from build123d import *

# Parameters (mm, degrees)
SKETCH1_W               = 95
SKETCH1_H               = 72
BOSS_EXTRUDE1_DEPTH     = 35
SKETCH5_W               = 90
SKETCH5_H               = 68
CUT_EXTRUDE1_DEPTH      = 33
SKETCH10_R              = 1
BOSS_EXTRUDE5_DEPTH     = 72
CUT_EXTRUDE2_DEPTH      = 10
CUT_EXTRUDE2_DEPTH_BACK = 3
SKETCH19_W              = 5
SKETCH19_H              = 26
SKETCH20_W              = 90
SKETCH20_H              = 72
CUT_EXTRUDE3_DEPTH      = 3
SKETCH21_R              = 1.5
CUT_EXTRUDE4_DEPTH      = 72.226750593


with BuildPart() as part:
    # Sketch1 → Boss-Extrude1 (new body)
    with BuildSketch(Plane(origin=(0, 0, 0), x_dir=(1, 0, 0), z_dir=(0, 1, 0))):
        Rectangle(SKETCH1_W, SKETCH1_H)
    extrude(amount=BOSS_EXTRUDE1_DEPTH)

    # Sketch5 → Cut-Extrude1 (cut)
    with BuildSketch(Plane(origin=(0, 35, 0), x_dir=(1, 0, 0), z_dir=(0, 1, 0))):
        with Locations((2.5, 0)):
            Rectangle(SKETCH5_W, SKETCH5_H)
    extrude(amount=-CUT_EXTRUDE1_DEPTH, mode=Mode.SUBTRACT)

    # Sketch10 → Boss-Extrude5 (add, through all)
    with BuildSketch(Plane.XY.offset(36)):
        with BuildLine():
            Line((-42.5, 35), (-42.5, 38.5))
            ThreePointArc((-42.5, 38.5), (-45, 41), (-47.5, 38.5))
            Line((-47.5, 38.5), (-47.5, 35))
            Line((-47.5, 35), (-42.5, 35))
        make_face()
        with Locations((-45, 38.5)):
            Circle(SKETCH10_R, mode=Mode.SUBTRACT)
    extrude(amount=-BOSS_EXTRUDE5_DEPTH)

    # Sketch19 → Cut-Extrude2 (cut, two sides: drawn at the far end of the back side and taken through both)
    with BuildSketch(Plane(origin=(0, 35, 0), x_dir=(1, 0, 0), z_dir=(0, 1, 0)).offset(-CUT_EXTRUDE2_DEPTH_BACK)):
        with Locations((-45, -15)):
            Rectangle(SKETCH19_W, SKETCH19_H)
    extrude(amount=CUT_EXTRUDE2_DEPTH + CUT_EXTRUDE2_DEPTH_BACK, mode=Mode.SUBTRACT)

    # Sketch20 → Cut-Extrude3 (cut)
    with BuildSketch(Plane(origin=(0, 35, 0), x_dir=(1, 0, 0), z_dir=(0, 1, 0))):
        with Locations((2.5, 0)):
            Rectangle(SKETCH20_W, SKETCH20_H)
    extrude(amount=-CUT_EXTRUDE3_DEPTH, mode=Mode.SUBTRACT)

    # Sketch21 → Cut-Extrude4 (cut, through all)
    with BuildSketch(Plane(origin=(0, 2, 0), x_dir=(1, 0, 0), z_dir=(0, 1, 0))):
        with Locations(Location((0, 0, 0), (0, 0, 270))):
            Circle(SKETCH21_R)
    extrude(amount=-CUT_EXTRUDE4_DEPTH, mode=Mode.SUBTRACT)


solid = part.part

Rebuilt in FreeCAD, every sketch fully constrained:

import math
import FreeCAD as App
import Part
import Sketcher
from FreeCAD import Vector


def add_polygon(sketch, points):
    """Adds a closed chain of lines whose ends are joined by coincident constraints."""
    first, n = sketch.GeometryCount, len(points)
    for a, b in zip(points, points[1:] + points[:1]):
        sketch.addGeometry(Part.LineSegment(App.Vector(*a, 0), App.Vector(*b, 0)), False)
    for i in range(n):
        sketch.addConstraint(Sketcher.Constraint("Coincident", first + i, 2, first + (i + 1) % n, 1))

doc = App.newDocument("Part")
body = doc.addObject("PartDesign::Body", "Body")

# Sketch on XZ plane
sketch1 = doc.addObject("Sketcher::SketchObject", "Sketch")
body.addObject(sketch1)
sketch1.AttachmentSupport = (doc.XZ_Plane, [""])
sketch1.MapMode = "FlatFace"
add_polygon(sketch1, [(-47.5, -36), (-47.5, 36), (47.5, 36), (47.5, -36)])  # lines 0-3
sketch1.addConstraint([
    Sketcher.Constraint("Vertical", 0),
    Sketcher.Constraint("Horizontal", 1),
    Sketcher.Constraint("Vertical", 2),
    Sketcher.Constraint("Horizontal", 3),
    Sketcher.Constraint("Symmetric", 0, 2, 2, 2, -1, 1),
    Sketcher.Constraint("DistanceX", 1, 1, 1, 2, 95.0),
    Sketcher.Constraint("DistanceY", 0, 1, 0, 2, 72.0),
])
pad1 = doc.addObject("PartDesign::Pad", "Pad")
body.addObject(pad1)
pad1.Profile = sketch1
pad1.Length = 35
pad1.Reversed = True

# Sketch on XZ plane
sketch2 = doc.addObject("Sketcher::SketchObject", "Sketch001")
body.addObject(sketch2)
sketch2.AttachmentSupport = (doc.XZ_Plane, [""])
sketch2.MapMode = "FlatFace"
sketch2.AttachmentOffset = App.Placement(Vector(0, 0, -35), App.Rotation())
add_polygon(sketch2, [(-42.5, -34), (-42.5, 34), (47.5, 34), (47.5, -34)])  # lines 0-3
sketch2.addConstraint([
    Sketcher.Constraint("Vertical", 0),
    Sketcher.Constraint("Horizontal", 1),
    Sketcher.Constraint("Vertical", 2),
    Sketcher.Constraint("Horizontal", 3),
    Sketcher.Constraint("DistanceX", 1, 1, 1, 2, 90.0),
    Sketcher.Constraint("DistanceY", 0, 1, 0, 2, 68.0),
    Sketcher.Constraint("DistanceY", -1, 1, 0, 2, 34.0),
    Sketcher.Constraint("DistanceX", 0, 2, -1, 1, 42.5),
])
pocket1 = doc.addObject("PartDesign::Pocket", "Pocket")
body.addObject(pocket1)
pocket1.Profile = sketch2
pocket1.Length = 33
pocket1.Reversed = True

# Sketch on XY plane
sketch3 = doc.addObject("Sketcher::SketchObject", "Sketch002")
body.addObject(sketch3)
sketch3.AttachmentSupport = (doc.XY_Plane, [""])
sketch3.MapMode = "FlatFace"
sketch3.AttachmentOffset = App.Placement(Vector(0, 0, 36), App.Rotation())
sketch3.addGeometry([
    Part.LineSegment(Vector(-42.5, 35, 0), Vector(-42.5, 38.5, 0)),  # 0
    Part.ArcOfCircle(Part.Circle(Vector(-45, 38.5, 0), Vector(0, 0, 1), 2.5), math.radians(0), math.radians(180)),  # 1
    Part.LineSegment(Vector(-47.5, 38.5, 0), Vector(-47.5, 35, 0)),  # 2
    Part.LineSegment(Vector(-47.5, 35, 0), Vector(-42.5, 35, 0)),  # 3
    Part.Circle(Vector(-45, 38.5, 0), Vector(0, 0, 1), 1),  # 4
], False)
sketch3.addConstraint([
    Sketcher.Constraint("Tangent", 0, 2, 1, 1),
    Sketcher.Constraint("Tangent", 1, 2, 2, 1),
    Sketcher.Constraint("Coincident", 2, 2, 3, 1),
    Sketcher.Constraint("Coincident", 3, 2, 0, 1),
    Sketcher.Constraint("Vertical", 0),
    Sketcher.Constraint("Vertical", 2),
    Sketcher.Constraint("Horizontal", 3),
    Sketcher.Constraint("Coincident", 4, 3, 1, 3),
    Sketcher.Constraint("Diameter", 4, 2.0),
    Sketcher.Constraint("Radius", 1, 2.5),
    Sketcher.Constraint("DistanceY", 0, 1, 0, 2, 3.5),
    Sketcher.Constraint("DistanceX", 1, 3, -1, 1, 45.0),
    Sketcher.Constraint("DistanceY", -1, 1, 2, 2, 35.0),
])
pad2 = doc.addObject("PartDesign::Pad", "Pad001")
body.addObject(pad2)
pad2.Profile = sketch3
pad2.Length = 72
pad2.Reversed = True

# Sketch on XZ plane
sketch4 = doc.addObject("Sketcher::SketchObject", "Sketch003")
body.addObject(sketch4)
sketch4.AttachmentSupport = (doc.XZ_Plane, [""])
sketch4.MapMode = "FlatFace"
sketch4.AttachmentOffset = App.Placement(Vector(0, 0, -35), App.Rotation())
add_polygon(sketch4, [(-47.5, 2), (-47.5, 28), (-42.5, 28), (-42.5, 2)])  # lines 0-3
sketch4.addConstraint([
    Sketcher.Constraint("Vertical", 0),
    Sketcher.Constraint("Horizontal", 1),
    Sketcher.Constraint("Vertical", 2),
    Sketcher.Constraint("Horizontal", 3),
    Sketcher.Constraint("DistanceX", 1, 1, 1, 2, 5.0),
    Sketcher.Constraint("DistanceY", 0, 1, 0, 2, 26.0),
    Sketcher.Constraint("DistanceY", -1, 1, 0, 2, 28.0),
    Sketcher.Constraint("DistanceX", 0, 2, -1, 1, 47.5),
])
pocket2 = doc.addObject("PartDesign::Pocket", "Pocket001")
body.addObject(pocket2)
pocket2.Profile = sketch4
pocket2.Type = "TwoLengths"
pocket2.Length = 10
pocket2.Length2 = 3

# Sketch on XZ plane
sketch5 = doc.addObject("Sketcher::SketchObject", "Sketch004")
body.addObject(sketch5)
sketch5.AttachmentSupport = (doc.XZ_Plane, [""])
sketch5.MapMode = "FlatFace"
sketch5.AttachmentOffset = App.Placement(Vector(0, 0, -35), App.Rotation())
add_polygon(sketch5, [(-42.5, -36), (-42.5, 36), (47.5, 36), (47.5, -36)])  # lines 0-3
sketch5.addConstraint([
    Sketcher.Constraint("Vertical", 0),
    Sketcher.Constraint("Horizontal", 1),
    Sketcher.Constraint("Vertical", 2),
    Sketcher.Constraint("Horizontal", 3),
    Sketcher.Constraint("DistanceX", 1, 1, 1, 2, 90.0),
    Sketcher.Constraint("DistanceY", 0, 1, 0, 2, 72.0),
    Sketcher.Constraint("DistanceY", -1, 1, 0, 2, 36.0),
    Sketcher.Constraint("DistanceX", 0, 2, -1, 1, 42.5),
])
pocket3 = doc.addObject("PartDesign::Pocket", "Pocket002")
body.addObject(pocket3)
pocket3.Profile = sketch5
pocket3.Length = 3
pocket3.Reversed = True

# Sketch on XZ plane
sketch6 = doc.addObject("Sketcher::SketchObject", "Sketch005")
body.addObject(sketch6)
sketch6.AttachmentSupport = (doc.XZ_Plane, [""])
sketch6.MapMode = "FlatFace"
sketch6.AttachmentOffset = App.Placement(Vector(0, 0, -2), App.Rotation())
sketch6.addGeometry(Part.Circle(Vector(0, 0, 0), Vector(0, 0, 1), 1.5), False)
sketch6.addConstraint([
    Sketcher.Constraint("Coincident", 0, 3, -1, 1),
    Sketcher.Constraint("Diameter", 0, 3.0),
])
pocket4 = doc.addObject("PartDesign::Pocket", "Pocket003")
body.addObject(pocket4)
pocket4.Profile = sketch6
pocket4.Type = "ThroughAll"
pocket4.Reversed = True

doc.recompute()
